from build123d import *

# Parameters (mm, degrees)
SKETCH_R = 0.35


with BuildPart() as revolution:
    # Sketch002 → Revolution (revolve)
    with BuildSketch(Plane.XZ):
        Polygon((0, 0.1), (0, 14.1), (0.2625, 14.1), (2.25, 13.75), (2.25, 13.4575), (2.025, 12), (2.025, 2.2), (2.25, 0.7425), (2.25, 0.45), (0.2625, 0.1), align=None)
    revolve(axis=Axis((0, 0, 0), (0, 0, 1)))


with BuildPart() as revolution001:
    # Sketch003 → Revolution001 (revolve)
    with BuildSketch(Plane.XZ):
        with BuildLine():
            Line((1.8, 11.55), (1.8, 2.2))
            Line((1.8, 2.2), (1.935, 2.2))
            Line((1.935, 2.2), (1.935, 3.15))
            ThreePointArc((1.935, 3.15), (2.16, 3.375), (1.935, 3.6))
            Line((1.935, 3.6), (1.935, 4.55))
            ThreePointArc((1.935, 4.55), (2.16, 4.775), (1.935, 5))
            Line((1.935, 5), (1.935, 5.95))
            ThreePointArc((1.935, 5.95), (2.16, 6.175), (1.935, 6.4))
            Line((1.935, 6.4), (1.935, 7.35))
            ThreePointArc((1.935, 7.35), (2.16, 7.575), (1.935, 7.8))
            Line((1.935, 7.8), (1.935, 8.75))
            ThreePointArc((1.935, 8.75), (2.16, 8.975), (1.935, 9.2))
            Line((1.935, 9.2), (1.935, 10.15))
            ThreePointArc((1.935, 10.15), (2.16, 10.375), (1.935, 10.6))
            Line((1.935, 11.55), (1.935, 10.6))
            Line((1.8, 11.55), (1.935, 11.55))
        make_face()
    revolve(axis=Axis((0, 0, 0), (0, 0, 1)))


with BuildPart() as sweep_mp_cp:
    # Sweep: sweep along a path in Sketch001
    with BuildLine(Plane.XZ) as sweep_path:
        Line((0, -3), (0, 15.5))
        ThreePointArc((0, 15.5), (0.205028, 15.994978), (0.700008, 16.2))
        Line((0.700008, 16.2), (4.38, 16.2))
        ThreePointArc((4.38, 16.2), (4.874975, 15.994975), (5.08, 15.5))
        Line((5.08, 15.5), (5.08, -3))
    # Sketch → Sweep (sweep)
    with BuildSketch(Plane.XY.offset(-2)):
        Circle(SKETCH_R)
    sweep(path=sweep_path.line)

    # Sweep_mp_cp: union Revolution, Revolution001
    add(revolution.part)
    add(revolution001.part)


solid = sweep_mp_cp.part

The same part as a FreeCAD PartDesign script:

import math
import FreeCAD as App
import Part
import Sketcher
Q = App.Units.Quantity

doc = App.newDocument("Part")
params = doc.addObject("Spreadsheet::Sheet", "Params")
for row, (alias, value) in enumerate([
    ("sketch1_height", "14 mm"),
    ("sketch1_height2", "9.8 mm"),
    ("revolution_angle", "360 deg"),
    ("revolution2_angle", "360 deg"),
    ("sketch3_diameter", "0.7 mm"),
    ("sketch4_radius", "0.699999 mm"),
    ("sketch4_height", "18.5 mm"),
], start=1):
    params.set(f"A{row}", alias)
    params.set(f"B{row}", "=" + value)
    params.setAlias(f"B{row}", alias)

body = doc.addObject("PartDesign::Body", "Body")

# Sketch on XZ plane
sketch1 = body.newObject("Sketcher::SketchObject", "Sketch")
sketch1.AttachmentSupport = (doc.getObject("XZ_Plane"), [""])
sketch1.MapMode = "FlatFace"
sketch1.addGeometry(Part.LineSegment(App.Vector(0, 14.1, 0), App.Vector(0, 0.1, 0)), False)
sketch1.addGeometry(Part.LineSegment(App.Vector(0, 0.1, 0), App.Vector(0.26, 0.1, 0)), False)
sketch1.addGeometry(Part.LineSegment(App.Vector(0.26, 0.1, 0), App.Vector(2.25, 0.45, 0)), False)
sketch1.addGeometry(Part.LineSegment(App.Vector(2.25, 0.45, 0), App.Vector(2.25, 0.74, 0)), False)
sketch1.addGeometry(Part.LineSegment(App.Vector(2.25, 0.74, 0), App.Vector(2.02, 2.2, 0)), False)
sketch1.addGeometry(Part.LineSegment(App.Vector(2.02, 2.2, 0), App.Vector(2.02, 12, 0)), False)
sketch1.addGeometry(Part.LineSegment(App.Vector(2.02, 12, 0), App.Vector(2.25, 13.46, 0)), False)
sketch1.addGeometry(Part.LineSegment(App.Vector(2.25, 13.46, 0), App.Vector(2.25, 13.75, 0)), False)
sketch1.addGeometry(Part.LineSegment(App.Vector(2.25, 13.75, 0), App.Vector(0.26, 14.1, 0)), False)
sketch1.addGeometry(Part.LineSegment(App.Vector(0.26, 14.1, 0), App.Vector(0, 14.1, 0)), False)
sketch1.addConstraint(Sketcher.Constraint("Coincident", 0, 2, 1, 1))
sketch1.addConstraint(Sketcher.Constraint("Coincident", 1, 2, 2, 1))
sketch1.addConstraint(Sketcher.Constraint("Coincident", 2, 2, 3, 1))
sketch1.addConstraint(Sketcher.Constraint("Coincident", 3, 2, 4, 1))
sketch1.addConstraint(Sketcher.Constraint("Coincident", 4, 2, 5, 1))
sketch1.addConstraint(Sketcher.Constraint("Coincident", 5, 2, 6, 1))
sketch1.addConstraint(Sketcher.Constraint("Coincident", 6, 2, 7, 1))
sketch1.addConstraint(Sketcher.Constraint("Coincident", 7, 2, 8, 1))
sketch1.addConstraint(Sketcher.Constraint("Coincident", 8, 2, 9, 1))
sketch1.addConstraint(Sketcher.Constraint("Coincident", 9, 2, 0, 1))
sketch1.addConstraint(Sketcher.Constraint("Vertical", 0))
sketch1.addConstraint(Sketcher.Constraint("Horizontal", 1))
sketch1.addConstraint(Sketcher.Constraint("Vertical", 3))
sketch1.addConstraint(Sketcher.Constraint("Vertical", 5))
sketch1.addConstraint(Sketcher.Constraint("Vertical", 7))
sketch1.addConstraint(Sketcher.Constraint("Horizontal", 9))
sketch1.addConstraint(Sketcher.Constraint("PointOnObject", 0, 2, -2))
sketch1.addConstraint(Sketcher.Constraint("Vertical", 3, 2, 6, 2))
sketch1.addConstraint(Sketcher.Constraint("Vertical", 1, 2, 8, 2))
sketch1.addConstraint(Sketcher.Constraint("Equal", 3, 7))
sketch1.addConstraint(Sketcher.Constraint("Equal", 4, 6))
sketch1.addConstraint(Sketcher.Constraint("Equal", 2, 8))
sketch1.addConstraint(Sketcher.Constraint("DistanceY", 0, 2, 0, 1, Q("14 mm")))
sketch1.addConstraint(Sketcher.Constraint("DistanceY", 5, 1, 5, 2, Q("9.8 mm")))
sketch1.addConstraint(Sketcher.Constraint("DistanceY", -1, 1, 5, 2, Q("12 mm")))
sketch1.addConstraint(Sketcher.Constraint("DistanceY", 2, 2, 7, 2, Q("13.3 mm")))
sketch1.addConstraint(Sketcher.Constraint("DistanceX", -1, 1, 2, 2, Q("2.25 mm")))
sketch1.addConstraint(Sketcher.Constraint("DistanceX", 1, 1, 1, 2, Q("0.2625 mm")))
sketch1.addConstraint(Sketcher.Constraint("DistanceY", 3, 1, 3, 2, Q("0.2925 mm")))
sketch1.addConstraint(Sketcher.Constraint("DistanceX", -1, 1, 4, 2, Q("2.025 mm")))
sketch1.setExpression("Constraints[22]", "Params.sketch1_height")
sketch1.setExpression("Constraints[23]", "Params.sketch1_height2")
revolution = body.newObject("PartDesign::Revolution", "Revolution")
revolution.Profile = sketch1
revolution.ReferenceAxis = (sketch1, ["V_Axis"])
revolution.setExpression("Angle", "Params.revolution_angle")
body2 = doc.addObject("PartDesign::Body", "Body001")

# Sketch on XZ plane
sketch2 = body2.newObject("Sketcher::SketchObject", "Sketch001")
sketch2.AttachmentSupport = (doc.getObject("XZ_Plane001"), [""])
sketch2.MapMode = "FlatFace"
sketch2.addGeometry(Part.LineSegment(App.Vector(1.8, 11.55, 0), App.Vector(1.8, 2.2, 0)), False)
sketch2.addGeometry(Part.LineSegment(App.Vector(1.8, 2.2, 0), App.Vector(1.94, 2.2, 0)), False)
sketch2.addGeometry(Part.LineSegment(App.Vector(1.94, 2.2, 0), App.Vector(1.94, 3.15, 0)), False)
sketch2.addGeometry(Part.ArcOfCircle(Part.Circle(App.Vector(1.94, 3.38, 0), App.Vector(0, 0, 1), 0.23), math.radians(-90), math.radians(90)), False)
sketch2.addGeometry(Part.LineSegment(App.Vector(1.94, 3.6, 0), App.Vector(1.94, 4.55, 0)), False)
sketch2.addGeometry(Part.ArcOfCircle(Part.Circle(App.Vector(1.94, 4.78, 0), App.Vector(0, 0, 1), 0.23), math.radians(-90), math.radians(90)), False)
sketch2.addGeometry(Part.LineSegment(App.Vector(1.94, 5, 0), App.Vector(1.94, 5.95, 0)), False)
sketch2.addGeometry(Part.ArcOfCircle(Part.Circle(App.Vector(1.94, 6.17, 0), App.Vector(0, 0, 1), 0.23), math.radians(-90), math.radians(90)), False)
sketch2.addGeometry(Part.LineSegment(App.Vector(1.94, 6.4, 0), App.Vector(1.94, 7.35, 0)), False)
sketch2.addGeometry(Part.ArcOfCircle(Part.Circle(App.Vector(1.94, 7.58, 0), App.Vector(0, 0, 1), 0.23), math.radians(-90), math.radians(90)), False)
sketch2.addGeometry(Part.LineSegment(App.Vector(1.94, 7.8, 0), App.Vector(1.94, 8.75, 0)), False)
sketch2.addGeometry(Part.ArcOfCircle(Part.Circle(App.Vector(1.94, 8.97, 0), App.Vector(0, 0, 1), 0.23), math.radians(-90), math.radians(90)), False)
sketch2.addGeometry(Part.LineSegment(App.Vector(1.94, 9.2, 0), App.Vector(1.94, 10.15, 0)), False)
sketch2.addGeometry(Part.ArcOfCircle(Part.Circle(App.Vector(1.94, 10.38, 0), App.Vector(0, 0, 1), 0.23), math.radians(-90), math.radians(90)), False)
sketch2.addGeometry(Part.LineSegment(App.Vector(1.94, 10.6, 0), App.Vector(1.94, 11.55, 0)), False)
sketch2.addGeometry(Part.LineSegment(App.Vector(1.94, 11.55, 0), App.Vector(1.8, 11.55, 0)), False)
sketch2.addConstraint(Sketcher.Constraint("Coincident", 0, 2, 1, 1))
sketch2.addConstraint(Sketcher.Constraint("Coincident", 1, 2, 2, 1))
sketch2.addConstraint(Sketcher.Constraint("Coincident", 2, 2, 3, 1))
sketch2.addConstraint(Sketcher.Constraint("Coincident", 3, 2, 4, 1))
sketch2.addConstraint(Sketcher.Constraint("Coincident", 4, 2, 5, 1))
sketch2.addConstraint(Sketcher.Constraint("Coincident", 5, 2, 6, 1))
sketch2.addConstraint(Sketcher.Constraint("Coincident", 6, 2, 7, 1))
sketch2.addConstraint(Sketcher.Constraint("Coincident", 7, 2, 8, 1))
sketch2.addConstraint(Sketcher.Constraint("Coincident", 8, 2, 9, 1))
sketch2.addConstraint(Sketcher.Constraint("Coincident", 9, 2, 10, 1))
sketch2.addConstraint(Sketcher.Constraint("Coincident", 10, 2, 11, 1))
sketch2.addConstraint(Sketcher.Constraint("Coincident", 11, 2, 12, 1))
sketch2.addConstraint(Sketcher.Constraint("Coincident", 12, 2, 13, 1))
sketch2.addConstraint(Sketcher.Constraint("Coincident", 13, 2, 14, 1))
sketch2.addConstraint(Sketcher.Constraint("Coincident", 14, 2, 15, 1))
sketch2.addConstraint(Sketcher.Constraint("Coincident", 15, 2, 0, 1))
sketch2.addConstraint(Sketcher.Constraint("Vertical", 0))
sketch2.addConstraint(Sketcher.Constraint("Horizontal", 1))
sketch2.addConstraint(Sketcher.Constraint("Vertical", 2))
sketch2.addConstraint(Sketcher.Constraint("Vertical", 4))
sketch2.addConstraint(Sketcher.Constraint("Vertical", 6))
sketch2.addConstraint(Sketcher.Constraint("Vertical", 8))
sketch2.addConstraint(Sketcher.Constraint("Vertical", 10))
sketch2.addConstraint(Sketcher.Constraint("Vertical", 12))
sketch2.addConstraint(Sketcher.Constraint("Vertical", 14))
sketch2.addConstraint(Sketcher.Constraint("Horizontal", 15))
sketch2.addConstraint(Sketcher.Constraint("Equal", 3, 5))
sketch2.addConstraint(Sketcher.Constraint("Equal", 5, 7))
sketch2.addConstraint(Sketcher.Constraint("Equal", 7, 9))
sketch2.addConstraint(Sketcher.Constraint("Equal", 9, 11))
sketch2.addConstraint(Sketcher.Constraint("Equal", 11, 13))
sketch2.addConstraint(Sketcher.Constraint("Vertical", 3, 3, 5, 3))
sketch2.addConstraint(Sketcher.Constraint("Vertical", 5, 3, 7, 3))
sketch2.addConstraint(Sketcher.Constraint("Vertical", 7, 3, 9, 3))
sketch2.addConstraint(Sketcher.Constraint("Vertical", 9, 3, 11, 3))
sketch2.addConstraint(Sketcher.Constraint("Vertical", 11, 3, 13, 3))
sketch2.addConstraint(Sketcher.Constraint("Vertical", 13, 3, 1, 2))
sketch2.addConstraint(Sketcher.Constraint("Vertical", 2, 2, 3, 2))
sketch2.addConstraint(Sketcher.Constraint("Vertical", 4, 2, 5, 2))
sketch2.addConstraint(Sketcher.Constraint("Vertical", 6, 2, 7, 2))
sketch2.addConstraint(Sketcher.Constraint("Vertical", 8, 2, 9, 2))
sketch2.addConstraint(Sketcher.Constraint("Vertical", 10, 2, 11, 2))
sketch2.addConstraint(Sketcher.Constraint("Vertical", 12, 2, 13, 2))
sketch2.addConstraint(Sketcher.Constraint("Equal", 2, 4))
sketch2.addConstraint(Sketcher.Constraint("Equal", 4, 6))
sketch2.addConstraint(Sketcher.Constraint("Equal", 6, 8))
sketch2.addConstraint(Sketcher.Constraint("Equal", 8, 10))
sketch2.addConstraint(Sketcher.Constraint("Equal", 10, 12))
sketch2.addConstraint(Sketcher.Constraint("Equal", 12, 14))
sketch2.addConstraint(Sketcher.Constraint("DistanceY", -1, 1, 5, 2, Q("5 mm")))
sketch2.addConstraint(Sketcher.Constraint("Radius", 3, Q("0.225 mm")))
sketch2.addConstraint(Sketcher.Constraint("DistanceY", 3, 3, 13, 3, Q("7 mm")))
sketch2.addConstraint(Sketcher.Constraint("DistanceX", -1, 1, 0, 2, Q("1.8 mm")))
sketch2.addConstraint(Sketcher.Constraint("DistanceX", 1, 1, 1, 2, Q("0.135 mm")))
revolution2 = body2.newObject("PartDesign::Revolution", "Revolution001")
revolution2.Profile = sketch2
revolution2.ReferenceAxis = (sketch2, ["V_Axis"])
revolution2.setExpression("Angle", "Params.revolution2_angle")
body3 = doc.addObject("PartDesign::Body", "Body002")

# Sketch on XY plane
sketch3 = body3.newObject("Sketcher::SketchObject", "Sketch002")
sketch3.AttachmentSupport = (doc.getObject("XY_Plane002"), [""])
sketch3.MapMode = "FlatFace"
sketch3.AttachmentOffset = App.Placement(App.Vector(0, 0, -2), App.Rotation())
sketch3.addGeometry(Part.Circle(App.Vector(0, 0, 0), App.Vector(0, 0, 1), 0.35), False)
sketch3.addConstraint(Sketcher.Constraint("Coincident", 0, 3, -1, 1))
sketch3.addConstraint(Sketcher.Constraint("Diameter", 0, Q("0.7 mm")))
sketch3.setExpression("Constraints[1]", "Params.sketch3_diameter")

# Sketch on XZ plane
sketch4 = body3.newObject("Sketcher::SketchObject", "Sketch003")
sketch4.AttachmentSupport = (doc.getObject("XZ_Plane002"), [""])
sketch4.MapMode = "FlatFace"
sketch4.addGeometry(Part.LineSegment(App.Vector(0, -3, 0), App.Vector(0, 15.5, 0)), False)
sketch4.addGeometry(Part.ArcOfCircle(Part.Circle(App.Vector(0.7, 15.5, 0), App.Vector(0, 0, 1), 0.7), math.radians(90), math.radians(180)), False)
sketch4.addGeometry(Part.LineSegment(App.Vector(0.7, 16.2, 0), App.Vector(4.4, 16.2, 0)), False)
sketch4.addGeometry(Part.ArcOfCircle(Part.Circle(App.Vector(4.4, 15.5, 0), App.Vector(0, 0, 1), 0.7), math.radians(0), math.radians(90)), False)
sketch4.addGeometry(Part.LineSegment(App.Vector(5.1, 15.5, 0), App.Vector(5.1, -3, 0)), False)
sketch4.addConstraint(Sketcher.Constraint("Tangent", 0, 2, 1, 2))
sketch4.addConstraint(Sketcher.Constraint("Coincident", 1, 1, 2, 1))
sketch4.addConstraint(Sketcher.Constraint("Tangent", 2, 2, 3, 2))
sketch4.addConstraint(Sketcher.Constraint("Tangent", 3, 1, 4, 1))
sketch4.addConstraint(Sketcher.Constraint("Vertical", 0))
sketch4.addConstraint(Sketcher.Constraint("Horizontal", 2))
sketch4.addConstraint(Sketcher.Constraint("Vertical", 4))
sketch4.addConstraint(Sketcher.Constraint("Equal", 1, 3))
sketch4.addConstraint(Sketcher.Constraint("PointOnObject", 0, 1, -2))
sketch4.addConstraint(Sketcher.Constraint("Horizontal", 0, 1, 4, 2))
sketch4.addConstraint(Sketcher.Constraint("Radius", 1, Q("0.699999 mm")))
sketch4.addConstraint(Sketcher.Constraint("DistanceY", 0, 1, 0, 2, Q("18.5 mm")))
sketch4.addConstraint(Sketcher.Constraint("DistanceY", 0, 1, -1, 1, Q("3 mm")))
sketch4.addConstraint(Sketcher.Constraint("DistanceX", -1, 1, 3, 3, Q("4.380001 mm")))
sketch4.addConstraint(Sketcher.Constraint("DistanceX", 2, 1, 2, 2, Q("3.679992 mm")))
sketch4.setExpression("Constraints[10]", "Params.sketch4_radius")
sketch4.setExpression("Constraints[11]", "Params.sketch4_height")
doc.recompute()

additivepipe = body3.newObject("PartDesign::AdditivePipe", "AdditivePipe")
additivepipe.Profile = sketch3
additivepipe.Spine = (sketch4, ["Edge1", "Edge2", "Edge3", "Edge4", "Edge5"])
doc.recompute()

boolean = body3.newObject("PartDesign::Boolean", "Boolean")
boolean.Type = "Fuse"
boolean.addObjects([body])
doc.recompute()

boolean2 = body3.newObject("PartDesign::Boolean", "Boolean001")
boolean2.Type = "Fuse"
boolean2.addObjects([body2])

doc.recompute()
